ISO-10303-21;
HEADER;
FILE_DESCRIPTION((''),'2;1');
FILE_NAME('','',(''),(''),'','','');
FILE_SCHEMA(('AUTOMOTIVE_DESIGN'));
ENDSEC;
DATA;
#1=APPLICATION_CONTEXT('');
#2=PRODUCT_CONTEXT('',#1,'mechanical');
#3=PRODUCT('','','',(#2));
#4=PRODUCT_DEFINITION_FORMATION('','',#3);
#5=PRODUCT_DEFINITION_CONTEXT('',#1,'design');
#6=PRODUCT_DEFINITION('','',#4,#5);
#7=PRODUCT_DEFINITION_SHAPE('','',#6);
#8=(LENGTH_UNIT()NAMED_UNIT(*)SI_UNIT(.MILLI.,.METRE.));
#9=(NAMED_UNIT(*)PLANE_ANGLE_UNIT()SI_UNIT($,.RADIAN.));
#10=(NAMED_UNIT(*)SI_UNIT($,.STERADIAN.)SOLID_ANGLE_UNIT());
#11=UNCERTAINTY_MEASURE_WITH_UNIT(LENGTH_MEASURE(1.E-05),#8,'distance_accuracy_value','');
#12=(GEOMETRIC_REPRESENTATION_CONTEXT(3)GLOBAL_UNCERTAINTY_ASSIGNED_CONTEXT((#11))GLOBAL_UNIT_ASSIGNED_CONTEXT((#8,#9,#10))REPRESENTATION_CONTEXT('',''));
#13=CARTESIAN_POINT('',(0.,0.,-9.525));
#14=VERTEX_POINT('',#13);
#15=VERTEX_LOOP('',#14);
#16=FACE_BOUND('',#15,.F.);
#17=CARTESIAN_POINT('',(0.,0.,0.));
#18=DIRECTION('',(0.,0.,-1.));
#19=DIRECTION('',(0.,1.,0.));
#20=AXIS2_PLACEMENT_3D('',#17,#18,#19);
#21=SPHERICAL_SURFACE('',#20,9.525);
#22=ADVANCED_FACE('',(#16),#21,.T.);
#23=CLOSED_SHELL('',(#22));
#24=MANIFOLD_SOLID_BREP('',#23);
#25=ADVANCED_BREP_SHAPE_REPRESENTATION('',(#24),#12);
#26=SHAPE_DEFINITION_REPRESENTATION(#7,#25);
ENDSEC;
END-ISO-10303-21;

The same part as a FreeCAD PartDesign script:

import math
import FreeCAD as App
import Part
import Sketcher
from FreeCAD import Vector
Q = App.Units.Quantity

doc = App.newDocument("Part")
params = doc.addObject("Spreadsheet::Sheet", "Params")
for row, (alias, value) in enumerate([
    ("sketch1_radius", "0.375 in"),
    ("revolution_angle", "360 deg"),
], start=1):
    params.set(f"A{row}", alias)
    params.set(f"B{row}", "=" + value)
    params.setAlias(f"B{row}", alias)

body = doc.addObject("PartDesign::Body", "Body")

# Sketch on YZ plane
sketch1 = doc.addObject("Sketcher::SketchObject", "Sketch")
body.addObject(sketch1)
sketch1.AttachmentSupport = (doc.YZ_Plane, [""])
sketch1.MapMode = "FlatFace"
sketch1.addGeometry(Part.LineSegment(Vector(0, 9.525, 0), Vector(0, -9.525, 0)), False)
sketch1.addGeometry(Part.ArcOfCircle(Part.Circle(Vector(0, 0, 0), Vector(0, 0, 1), 9.525), math.radians(-90), math.radians(90)), False)
sketch1.addConstraint(Sketcher.Constraint("Coincident", 0, 1, 1, 2))
sketch1.addConstraint(Sketcher.Constraint("Coincident", 1, 1, 0, 2))
sketch1.addConstraint(Sketcher.Constraint("Vertical", 0))
sketch1.addConstraint(Sketcher.Constraint("Coincident", 1, 3, -1, 1))
sketch1.addConstraint(Sketcher.Constraint("PointOnObject", 0, 1, -2))
sketch1.addConstraint(Sketcher.Constraint("Radius", 1, Q("0.375 in")))
sketch1.setExpression("Constraints[5]", "Params.sketch1_radius")
revolution = doc.addObject("PartDesign::Revolution", "Revolution")
body.addObject(revolution)
revolution.Profile = sketch1
revolution.ReferenceAxis = (sketch1, ["V_Axis"])
revolution.setExpression("Angle", "Params.revolution_angle")

doc.recompute()
